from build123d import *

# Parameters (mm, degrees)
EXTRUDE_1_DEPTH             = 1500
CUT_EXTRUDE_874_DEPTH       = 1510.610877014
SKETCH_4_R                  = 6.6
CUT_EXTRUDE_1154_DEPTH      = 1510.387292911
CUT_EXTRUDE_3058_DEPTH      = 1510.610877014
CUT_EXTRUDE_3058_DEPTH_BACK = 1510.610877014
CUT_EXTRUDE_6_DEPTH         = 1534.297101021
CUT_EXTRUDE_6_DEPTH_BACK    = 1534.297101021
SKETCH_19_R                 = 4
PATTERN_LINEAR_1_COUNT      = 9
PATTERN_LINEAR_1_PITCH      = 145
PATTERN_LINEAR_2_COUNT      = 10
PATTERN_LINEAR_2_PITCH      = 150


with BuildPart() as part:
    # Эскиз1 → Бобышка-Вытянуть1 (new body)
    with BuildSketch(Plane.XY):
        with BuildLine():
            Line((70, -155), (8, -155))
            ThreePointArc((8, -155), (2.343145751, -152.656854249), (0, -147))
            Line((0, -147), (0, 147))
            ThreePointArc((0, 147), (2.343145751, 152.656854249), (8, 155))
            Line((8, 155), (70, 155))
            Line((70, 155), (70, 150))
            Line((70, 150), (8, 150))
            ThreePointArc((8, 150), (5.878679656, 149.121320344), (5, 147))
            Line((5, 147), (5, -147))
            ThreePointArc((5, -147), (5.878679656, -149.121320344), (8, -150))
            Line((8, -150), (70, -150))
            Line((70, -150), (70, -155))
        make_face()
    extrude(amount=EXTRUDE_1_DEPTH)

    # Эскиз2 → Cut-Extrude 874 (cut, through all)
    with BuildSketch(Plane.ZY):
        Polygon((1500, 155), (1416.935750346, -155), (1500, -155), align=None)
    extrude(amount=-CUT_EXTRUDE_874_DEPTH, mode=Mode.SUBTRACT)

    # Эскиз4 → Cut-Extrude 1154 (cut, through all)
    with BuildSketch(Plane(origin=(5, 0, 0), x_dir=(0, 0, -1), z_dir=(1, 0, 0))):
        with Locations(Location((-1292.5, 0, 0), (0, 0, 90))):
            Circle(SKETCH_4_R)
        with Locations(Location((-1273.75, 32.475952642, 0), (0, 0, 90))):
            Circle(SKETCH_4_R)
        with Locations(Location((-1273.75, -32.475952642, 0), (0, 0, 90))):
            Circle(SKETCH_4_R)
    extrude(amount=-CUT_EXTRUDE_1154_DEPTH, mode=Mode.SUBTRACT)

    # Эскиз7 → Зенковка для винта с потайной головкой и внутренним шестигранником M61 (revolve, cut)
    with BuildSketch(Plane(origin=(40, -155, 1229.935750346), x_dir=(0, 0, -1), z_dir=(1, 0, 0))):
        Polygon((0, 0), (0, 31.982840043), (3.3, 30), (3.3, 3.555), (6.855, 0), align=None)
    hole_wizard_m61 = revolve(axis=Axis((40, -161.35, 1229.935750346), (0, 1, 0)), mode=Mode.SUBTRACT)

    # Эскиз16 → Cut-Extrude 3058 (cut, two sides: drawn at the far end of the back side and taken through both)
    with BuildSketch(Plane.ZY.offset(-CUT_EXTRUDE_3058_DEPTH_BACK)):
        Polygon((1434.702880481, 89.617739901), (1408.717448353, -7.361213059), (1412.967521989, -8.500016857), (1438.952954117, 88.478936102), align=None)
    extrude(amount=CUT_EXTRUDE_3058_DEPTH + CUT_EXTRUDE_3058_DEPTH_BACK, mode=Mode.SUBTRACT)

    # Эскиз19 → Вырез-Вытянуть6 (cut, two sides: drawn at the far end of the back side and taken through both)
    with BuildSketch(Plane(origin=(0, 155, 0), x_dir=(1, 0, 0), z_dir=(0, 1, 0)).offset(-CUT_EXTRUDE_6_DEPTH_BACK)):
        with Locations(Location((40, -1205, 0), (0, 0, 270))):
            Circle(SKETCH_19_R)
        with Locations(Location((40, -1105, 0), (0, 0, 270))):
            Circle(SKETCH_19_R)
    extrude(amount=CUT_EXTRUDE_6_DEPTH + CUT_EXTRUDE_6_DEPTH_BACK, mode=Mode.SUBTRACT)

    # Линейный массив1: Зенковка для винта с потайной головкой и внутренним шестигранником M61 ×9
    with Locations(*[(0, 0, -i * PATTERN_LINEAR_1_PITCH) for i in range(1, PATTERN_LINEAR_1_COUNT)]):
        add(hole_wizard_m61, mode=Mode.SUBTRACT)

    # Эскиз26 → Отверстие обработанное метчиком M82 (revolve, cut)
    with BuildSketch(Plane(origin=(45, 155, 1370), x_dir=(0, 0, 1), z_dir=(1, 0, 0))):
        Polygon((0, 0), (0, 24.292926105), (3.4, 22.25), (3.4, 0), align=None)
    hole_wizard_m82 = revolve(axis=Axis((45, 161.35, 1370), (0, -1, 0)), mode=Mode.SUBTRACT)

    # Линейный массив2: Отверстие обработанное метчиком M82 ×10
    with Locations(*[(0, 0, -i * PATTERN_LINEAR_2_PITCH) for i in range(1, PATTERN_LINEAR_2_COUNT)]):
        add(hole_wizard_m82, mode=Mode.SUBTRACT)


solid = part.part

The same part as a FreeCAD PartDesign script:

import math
import FreeCAD as App
import Part
import Sketcher
from FreeCAD import Vector
Q = App.Units.Quantity

doc = App.newDocument("Part")
params = doc.addObject("Spreadsheet::Sheet", "Params")
for row, (alias, value) in enumerate([
    ("sketch1_radius", "3 mm"),
    ("sketch1_radius2", "8 mm"),
    ("sketch1_width", "62 mm"),
    ("sketch1_height", "294 mm"),
    ("pad1_length", "1500 mm"),
    ("sketch2_width", "310 mm"),
    ("sketch3_diameter", "13.2 mm"),
    ("groove_angle", "360 deg"),
    ("sketch5_length", "100.4 mm"),
    ("sketch5_length2", "4.4 mm"),
    ("sketch6_diameter", "8 mm"),
    ("linearpattern_pitch", "145 mm"),
    ("sketch7_height", "3.4 mm"),
    ("sketch7_width", "22.25 mm"),
    ("groove2_angle", "360 deg"),
    ("linearpattern2_pitch", "150 mm"),
], start=1):
    params.set(f"A{row}", alias)
    params.set(f"B{row}", "=" + value)
    params.setAlias(f"B{row}", alias)

body = doc.addObject("PartDesign::Body", "Body")

# Sketch on XY plane
sketch1 = body.newObject("Sketcher::SketchObject", "Sketch")
sketch1.AttachmentSupport = (doc.getObject("XY_Plane"), [""])
sketch1.MapMode = "FlatFace"
sketch1.addGeometry(Part.LineSegment(Vector(8, -155, 0), Vector(70, -155, 0)), False)
sketch1.addGeometry(Part.LineSegment(Vector(70, -155, 0), Vector(70, -150, 0)), False)
sketch1.addGeometry(Part.LineSegment(Vector(70, -150, 0), Vector(8, -150, 0)), False)
sketch1.addGeometry(Part.ArcOfCircle(Part.Circle(Vector(8, -147, 0), Vector(0, 0, 1), 3), math.radians(180), math.radians(270)), False)
sketch1.addGeometry(Part.LineSegment(Vector(5, -147, 0), Vector(5, 147, 0)), False)
sketch1.addGeometry(Part.ArcOfCircle(Part.Circle(Vector(8, 147, 0), Vector(0, 0, 1), 3), math.radians(90), math.radians(180)), False)
sketch1.addGeometry(Part.LineSegment(Vector(8, 150, 0), Vector(70, 150, 0)), False)
sketch1.addGeometry(Part.LineSegment(Vector(70, 150, 0), Vector(70, 155, 0)), False)
sketch1.addGeometry(Part.LineSegment(Vector(70, 155, 0), Vector(8, 155, 0)), False)
sketch1.addGeometry(Part.ArcOfCircle(Part.Circle(Vector(8, 147, 0), Vector(0, 0, 1), 8), math.radians(90), math.radians(180)), False)
sketch1.addGeometry(Part.LineSegment(Vector(0, 147, 0), Vector(0, -147, 0)), False)
sketch1.addGeometry(Part.ArcOfCircle(Part.Circle(Vector(8, -147, 0), Vector(0, 0, 1), 8), math.radians(-180), math.radians(-90)), False)
sketch1.addConstraint(Sketcher.Constraint("Coincident", 0, 2, 1, 1))
sketch1.addConstraint(Sketcher.Constraint("Coincident", 1, 2, 2, 1))
sketch1.addConstraint(Sketcher.Constraint("Tangent", 2, 2, 3, 2))
sketch1.addConstraint(Sketcher.Constraint("Tangent", 3, 1, 4, 1))
sketch1.addConstraint(Sketcher.Constraint("Tangent", 4, 2, 5, 2))
sketch1.addConstraint(Sketcher.Constraint("Tangent", 5, 1, 6, 1))
sketch1.addConstraint(Sketcher.Constraint("Coincident", 6, 2, 7, 1))
sketch1.addConstraint(Sketcher.Constraint("Coincident", 7, 2, 8, 1))
sketch1.addConstraint(Sketcher.Constraint("Tangent", 8, 2, 9, 1))
sketch1.addConstraint(Sketcher.Constraint("Tangent", 9, 2, 10, 1))
sketch1.addConstraint(Sketcher.Constraint("Tangent", 10, 2, 11, 1))
sketch1.addConstraint(Sketcher.Constraint("Tangent", 11, 2, 0, 1))
sketch1.addConstraint(Sketcher.Constraint("Horizontal", 0))
sketch1.addConstraint(Sketcher.Constraint("Vertical", 1))
sketch1.addConstraint(Sketcher.Constraint("Horizontal", 2))
sketch1.addConstraint(Sketcher.Constraint("Vertical", 4))
sketch1.addConstraint(Sketcher.Constraint("Horizontal", 6))
sketch1.addConstraint(Sketcher.Constraint("Vertical", 7))
sketch1.addConstraint(Sketcher.Constraint("Horizontal", 8))
sketch1.addConstraint(Sketcher.Constraint("Vertical", 10))
sketch1.addConstraint(Sketcher.Constraint("Coincident", 9, 3, 5, 3))
sketch1.addConstraint(Sketcher.Constraint("Coincident", 11, 3, 3, 3))
sketch1.addConstraint(Sketcher.Constraint("Equal", 3, 5))
sketch1.addConstraint(Sketcher.Constraint("Symmetric", 9, 2, 10, 2, -1, 1))
sketch1.addConstraint(Sketcher.Constraint("Vertical", 1, 2, 6, 2))
sketch1.addConstraint(Sketcher.Constraint("Radius", 3, 3.0))
sketch1.addConstraint(Sketcher.Constraint("Radius", 9, 8.0))
sketch1.addConstraint(Sketcher.Constraint("DistanceX", 0, 1, 0, 2, 62.0))
sketch1.addConstraint(Sketcher.Constraint("DistanceY", 4, 1, 4, 2, 294.0))
sketch1.setExpression("Constraints[25]", "Params.sketch1_radius")
sketch1.setExpression("Constraints[26]", "Params.sketch1_radius2")
sketch1.setExpression("Constraints[27]", "Params.sketch1_width")
sketch1.setExpression("Constraints[28]", "Params.sketch1_height")
pad1 = body.newObject("PartDesign::Pad", "Pad")
pad1.Profile = sketch1
pad1.setExpression("Length", "Params.pad1_length")

# Sketch on YZ plane
sketch2 = body.newObject("Sketcher::SketchObject", "Sketch001")
sketch2.AttachmentSupport = (doc.getObject("YZ_Plane"), [""])
sketch2.MapMode = "FlatFace"
sketch2.addGeometry(Part.LineSegment(Vector(155, 1500, 0), Vector(-155, 1417, 0)), False)
sketch2.addGeometry(Part.LineSegment(Vector(-155, 1417, 0), Vector(-155, 1500, 0)), False)
sketch2.addGeometry(Part.LineSegment(Vector(-155, 1500, 0), Vector(155, 1500, 0)), False)
sketch2.addConstraint(Sketcher.Constraint("Coincident", 0, 2, 1, 1))
sketch2.addConstraint(Sketcher.Constraint("Coincident", 1, 2, 2, 1))
sketch2.addConstraint(Sketcher.Constraint("Coincident", 2, 2, 0, 1))
sketch2.addConstraint(Sketcher.Constraint("Vertical", 1))
sketch2.addConstraint(Sketcher.Constraint("Horizontal", 2))
sketch2.addConstraint(Sketcher.Constraint("DistanceX", 2, 1, 2, 2, 310.0))
sketch2.addConstraint(Sketcher.Constraint("Angle", 0, Q("-165 deg")))
sketch2.addConstraint(Sketcher.Constraint("DistanceX", 0, 2, -1, 1, 155.0))
sketch2.addConstraint(Sketcher.Constraint("DistanceY", -1, 1, 1, 2, 1500.0))
sketch2.setExpression("Constraints[5]", "Params.sketch2_width")
pocket1 = body.newObject("PartDesign::Pocket", "Pocket")
pocket1.Profile = sketch2
pocket1.Type = "ThroughAll"
pocket1.Reversed = True

# Sketch on YZ plane
sketch3 = body.newObject("Sketcher::SketchObject", "Sketch002")
sketch3.AttachmentSupport = (doc.getObject("YZ_Plane"), [""])
sketch3.MapMode = "FlatFace"
sketch3.AttachmentOffset = App.Placement(Vector(0, 0, 5), App.Rotation())
sketch3.addGeometry(Part.Circle(Vector(0, 1292, 0), Vector(0, 0, 1), 7), False)
sketch3.addGeometry(Part.Circle(Vector(32, 1274, 0), Vector(0, 0, 1), 7), False)
sketch3.addGeometry(Part.Circle(Vector(-32, 1274, 0), Vector(0, 0, 1), 7), False)
sketch3.addConstraint(Sketcher.Constraint("Equal", 0, 1))
sketch3.addConstraint(Sketcher.Constraint("Equal", 1, 2))
sketch3.addConstraint(Sketcher.Constraint("Symmetric", 1, 3, 2, 3, -2))
sketch3.addConstraint(Sketcher.Constraint("PointOnObject", 0, 3, -2))
sketch3.addConstraint(Sketcher.Constraint("Diameter", 0, 13.2))
sketch3.addConstraint(Sketcher.Constraint("DistanceY", -1, 1, 0, 3, 1292.5))
sketch3.addConstraint(Sketcher.Constraint("DistanceY", -1, 1, 1, 3, 1273.75))
sketch3.addConstraint(Sketcher.Constraint("DistanceX", -1, 1, 1, 3, 32.475953))
sketch3.setExpression("Constraints[4]", "Params.sketch3_diameter")
pocket2 = body.newObject("PartDesign::Pocket", "Pocket001")
pocket2.Profile = sketch3
pocket2.Type = "ThroughAll"

# Sketch on YZ plane
sketch4 = body.newObject("Sketcher::SketchObject", "Sketch003")
sketch4.AttachmentSupport = (doc.getObject("YZ_Plane"), [""])
sketch4.MapMode = "FlatFace"
sketch4.AttachmentOffset = App.Placement(Vector(0, 0, 40), App.Rotation())
sketch4.addGeometry(Part.LineSegment(Vector(-123, 1229.9, 0), Vector(-155, 1229.9, 0)), False)
sketch4.addGeometry(Part.LineSegment(Vector(-155, 1229.9, 0), Vector(-155, 1223.1, 0)), False)
sketch4.addGeometry(Part.LineSegment(Vector(-155, 1223.1, 0), Vector(-151.4, 1226.6, 0)), False)
sketch4.addGeometry(Part.LineSegment(Vector(-151.4, 1226.6, 0), Vector(-125, 1226.6, 0)), False)
sketch4.addGeometry(Part.LineSegment(Vector(-125, 1226.6, 0), Vector(-123, 1229.9, 0)), False)
sketch4.addGeometry(Part.LineSegment(Vector(-155, 1229.9, 0), Vector(-123, 1229.9, 0)), True)  # axis
sketch4.addConstraint(Sketcher.Constraint("Coincident", 0, 2, 1, 1))
sketch4.addConstraint(Sketcher.Constraint("Coincident", 1, 2, 2, 1))
sketch4.addConstraint(Sketcher.Constraint("Coincident", 2, 2, 3, 1))
sketch4.addConstraint(Sketcher.Constraint("Coincident", 3, 2, 4, 1))
sketch4.addConstraint(Sketcher.Constraint("Coincident", 4, 2, 0, 1))
sketch4.addConstraint(Sketcher.Constraint("Horizontal", 0))
sketch4.addConstraint(Sketcher.Constraint("Vertical", 1))
sketch4.addConstraint(Sketcher.Constraint("Horizontal", 3))
sketch4.addConstraint(Sketcher.Constraint("Horizontal", 5))
sketch4.addConstraint(Sketcher.Constraint("Coincident", 5, 1, 0, 2))
sketch4.addConstraint(Sketcher.Constraint("Equal", 0, 5))
sketch4.addConstraint(Sketcher.Constraint("Angle", 2, Q("45 deg")))
sketch4.addConstraint(Sketcher.Constraint("Angle", 4, Q("59 deg")))
sketch4.addConstraint(Sketcher.Constraint("DistanceX", 0, 2, -1, 1, 155.0))
sketch4.addConstraint(Sketcher.Constraint("DistanceX", 3, 2, -1, 1, 125.0))
sketch4.addConstraint(Sketcher.Constraint("DistanceY", 2, 2, 0, 2, 3.3))
sketch4.addConstraint(Sketcher.Constraint("DistanceX", 3, 1, 3, 2, 26.445))
sketch4.addConstraint(Sketcher.Constraint("DistanceY", -1, 1, 0, 2, 1229.93575))
groove = body.newObject("PartDesign::Groove", "Groove")
groove.Profile = sketch4
groove.ReferenceAxis = (sketch4, ["Axis0"])
groove.setExpression("Angle", "Params.groove_angle")

# Sketch on YZ plane
sketch5 = body.newObject("Sketcher::SketchObject", "Sketch004")
sketch5.AttachmentSupport = (doc.getObject("YZ_Plane"), [""])
sketch5.MapMode = "FlatFace"
sketch5.addGeometry(Part.LineSegment(Vector(89.6, 1434.7, 0), Vector(-7.4, 1408.7, 0)), False)
sketch5.addGeometry(Part.LineSegment(Vector(-7.4, 1408.7, 0), Vector(-8.5, 1413, 0)), False)
sketch5.addGeometry(Part.LineSegment(Vector(-8.5, 1413, 0), Vector(88.5, 1439, 0)), False)
sketch5.addGeometry(Part.LineSegment(Vector(88.5, 1439, 0), Vector(89.6, 1434.7, 0)), False)
sketch5.addConstraint(Sketcher.Constraint("Coincident", 0, 2, 1, 1))
sketch5.addConstraint(Sketcher.Constraint("Coincident", 1, 2, 2, 1))
sketch5.addConstraint(Sketcher.Constraint("Coincident", 2, 2, 3, 1))
sketch5.addConstraint(Sketcher.Constraint("Coincident", 3, 2, 0, 1))
sketch5.addConstraint(Sketcher.Constraint("Perpendicular", 0, 1))
sketch5.addConstraint(Sketcher.Constraint("Perpendicular", 1, 2))
sketch5.addConstraint(Sketcher.Constraint("Perpendicular", 2, 3))
sketch5.addConstraint(Sketcher.Constraint("Angle", 0, Q("-165 deg")))
sketch5.addConstraint(Sketcher.Constraint("Distance", 0, 100.4))
sketch5.addConstraint(Sketcher.Constraint("Distance", 1, 4.4))
sketch5.addConstraint(Sketcher.Constraint("DistanceY", -1, 1, 0, 2, 1408.717448))
sketch5.addConstraint(Sketcher.Constraint("DistanceX", -1, 1, 3, 2, 89.61774))
sketch5.setExpression("Constraints[8]", "Params.sketch5_length")
sketch5.setExpression("Constraints[9]", "Params.sketch5_length2")
pocket3 = body.newObject("PartDesign::Pocket", "Pocket002")
pocket3.Profile = sketch5
pocket3.Type = "ThroughAll"
pocket3.Midplane = True

# Sketch on XZ plane
sketch6 = body.newObject("Sketcher::SketchObject", "Sketch005")
sketch6.AttachmentSupport = (doc.getObject("XZ_Plane"), [""])
sketch6.MapMode = "FlatFace"
sketch6.AttachmentOffset = App.Placement(Vector(0, 0, -155), App.Rotation())
sketch6.addGeometry(Part.Circle(Vector(40, 1205, 0), Vector(0, 0, 1), 4), False)
sketch6.addGeometry(Part.Circle(Vector(40, 1105, 0), Vector(0, 0, 1), 4), False)
sketch6.addConstraint(Sketcher.Constraint("Equal", 0, 1))
sketch6.addConstraint(Sketcher.Constraint("Vertical", 0, 3, 1, 3))
sketch6.addConstraint(Sketcher.Constraint("Diameter", 0, 8.0))
sketch6.addConstraint(Sketcher.Constraint("DistanceX", -1, 1, 0, 3, 40.0))
sketch6.addConstraint(Sketcher.Constraint("DistanceY", -1, 1, 0, 3, 1205.0))
sketch6.addConstraint(Sketcher.Constraint("DistanceY", -1, 1, 1, 3, 1105.0))
sketch6.setExpression("Constraints[2]", "Params.sketch6_diameter")
pocket4 = body.newObject("PartDesign::Pocket", "Pocket003")
pocket4.Profile = sketch6
pocket4.Type = "ThroughAll"
pocket4.Midplane = True
doc.recompute()

linearpattern = body.newObject("PartDesign::LinearPattern", "LinearPattern")
linearpattern.Originals = [groove]
linearpattern.Direction = (doc.getObject("Z_Axis"), [""])
linearpattern.Mode = "offset"
linearpattern.setExpression("Offset", "Params.linearpattern_pitch")
linearpattern.Occurrences = 9
linearpattern.Reversed = True
body.Tip = linearpattern

# Sketch on YZ plane
sketch7 = body.newObject("Sketcher::SketchObject", "Sketch006")
sketch7.AttachmentSupport = (doc.getObject("YZ_Plane"), [""])
sketch7.MapMode = "FlatFace"
sketch7.AttachmentOffset = App.Placement(Vector(0, 0, 45), App.Rotation())
sketch7.addGeometry(Part.LineSegment(Vector(130.7, 1370, 0), Vector(155, 1370, 0)), False)
sketch7.addGeometry(Part.LineSegment(Vector(155, 1370, 0), Vector(155, 1373.4, 0)), False)
sketch7.addGeometry(Part.LineSegment(Vector(155, 1373.4, 0), Vector(132.8, 1373.4, 0)), False)
sketch7.addGeometry(Part.LineSegment(Vector(132.8, 1373.4, 0), Vector(130.7, 1370, 0)), False)
sketch7.addGeometry(Part.LineSegment(Vector(155, 1370, 0), Vector(130.7, 1370, 0)), True)  # axis
sketch7.addConstraint(Sketcher.Constraint("Coincident", 0, 2, 1, 1))
sketch7.addConstraint(Sketcher.Constraint("Coincident", 1, 2, 2, 1))
sketch7.addConstraint(Sketcher.Constraint("Coincident", 2, 2, 3, 1))
sketch7.addConstraint(Sketcher.Constraint("Coincident", 3, 2, 0, 1))
sketch7.addConstraint(Sketcher.Constraint("Horizontal", 0))
sketch7.addConstraint(Sketcher.Constraint("Vertical", 1))
sketch7.addConstraint(Sketcher.Constraint("Horizontal", 2))
sketch7.addConstraint(Sketcher.Constraint("Horizontal", 4))
sketch7.addConstraint(Sketcher.Constraint("Coincident", 4, 1, 0, 2))
sketch7.addConstraint(Sketcher.Constraint("Equal", 0, 4))
sketch7.addConstraint(Sketcher.Constraint("Angle", 3, Q("-121 deg")))
sketch7.addConstraint(Sketcher.Constraint("DistanceY", 1, 1, 1, 2, 3.4))
sketch7.addConstraint(Sketcher.Constraint("DistanceX", -1, 1, 0, 2, 155.0))
sketch7.addConstraint(Sketcher.Constraint("DistanceY", -1, 1, 0, 2, 1370.0))
sketch7.addConstraint(Sketcher.Constraint("DistanceX", 2, 2, 2, 1, 22.25))
sketch7.setExpression("Constraints[11]", "Params.sketch7_height")
sketch7.setExpression("Constraints[14]", "Params.sketch7_width")
groove2 = body.newObject("PartDesign::Groove", "Groove001")
groove2.Profile = sketch7
groove2.ReferenceAxis = (sketch7, ["Axis0"])
groove2.setExpression("Angle", "Params.groove2_angle")
doc.recompute()

linearpattern2 = body.newObject("PartDesign::LinearPattern", "LinearPattern001")
linearpattern2.Originals = [groove2]
linearpattern2.Direction = (doc.getObject("Z_Axis"), [""])
linearpattern2.Mode = "offset"
linearpattern2.setExpression("Offset", "Params.linearpattern2_pitch")
linearpattern2.Occurrences = 10
linearpattern2.Reversed = True
body.Tip = linearpattern2

doc.recompute()
